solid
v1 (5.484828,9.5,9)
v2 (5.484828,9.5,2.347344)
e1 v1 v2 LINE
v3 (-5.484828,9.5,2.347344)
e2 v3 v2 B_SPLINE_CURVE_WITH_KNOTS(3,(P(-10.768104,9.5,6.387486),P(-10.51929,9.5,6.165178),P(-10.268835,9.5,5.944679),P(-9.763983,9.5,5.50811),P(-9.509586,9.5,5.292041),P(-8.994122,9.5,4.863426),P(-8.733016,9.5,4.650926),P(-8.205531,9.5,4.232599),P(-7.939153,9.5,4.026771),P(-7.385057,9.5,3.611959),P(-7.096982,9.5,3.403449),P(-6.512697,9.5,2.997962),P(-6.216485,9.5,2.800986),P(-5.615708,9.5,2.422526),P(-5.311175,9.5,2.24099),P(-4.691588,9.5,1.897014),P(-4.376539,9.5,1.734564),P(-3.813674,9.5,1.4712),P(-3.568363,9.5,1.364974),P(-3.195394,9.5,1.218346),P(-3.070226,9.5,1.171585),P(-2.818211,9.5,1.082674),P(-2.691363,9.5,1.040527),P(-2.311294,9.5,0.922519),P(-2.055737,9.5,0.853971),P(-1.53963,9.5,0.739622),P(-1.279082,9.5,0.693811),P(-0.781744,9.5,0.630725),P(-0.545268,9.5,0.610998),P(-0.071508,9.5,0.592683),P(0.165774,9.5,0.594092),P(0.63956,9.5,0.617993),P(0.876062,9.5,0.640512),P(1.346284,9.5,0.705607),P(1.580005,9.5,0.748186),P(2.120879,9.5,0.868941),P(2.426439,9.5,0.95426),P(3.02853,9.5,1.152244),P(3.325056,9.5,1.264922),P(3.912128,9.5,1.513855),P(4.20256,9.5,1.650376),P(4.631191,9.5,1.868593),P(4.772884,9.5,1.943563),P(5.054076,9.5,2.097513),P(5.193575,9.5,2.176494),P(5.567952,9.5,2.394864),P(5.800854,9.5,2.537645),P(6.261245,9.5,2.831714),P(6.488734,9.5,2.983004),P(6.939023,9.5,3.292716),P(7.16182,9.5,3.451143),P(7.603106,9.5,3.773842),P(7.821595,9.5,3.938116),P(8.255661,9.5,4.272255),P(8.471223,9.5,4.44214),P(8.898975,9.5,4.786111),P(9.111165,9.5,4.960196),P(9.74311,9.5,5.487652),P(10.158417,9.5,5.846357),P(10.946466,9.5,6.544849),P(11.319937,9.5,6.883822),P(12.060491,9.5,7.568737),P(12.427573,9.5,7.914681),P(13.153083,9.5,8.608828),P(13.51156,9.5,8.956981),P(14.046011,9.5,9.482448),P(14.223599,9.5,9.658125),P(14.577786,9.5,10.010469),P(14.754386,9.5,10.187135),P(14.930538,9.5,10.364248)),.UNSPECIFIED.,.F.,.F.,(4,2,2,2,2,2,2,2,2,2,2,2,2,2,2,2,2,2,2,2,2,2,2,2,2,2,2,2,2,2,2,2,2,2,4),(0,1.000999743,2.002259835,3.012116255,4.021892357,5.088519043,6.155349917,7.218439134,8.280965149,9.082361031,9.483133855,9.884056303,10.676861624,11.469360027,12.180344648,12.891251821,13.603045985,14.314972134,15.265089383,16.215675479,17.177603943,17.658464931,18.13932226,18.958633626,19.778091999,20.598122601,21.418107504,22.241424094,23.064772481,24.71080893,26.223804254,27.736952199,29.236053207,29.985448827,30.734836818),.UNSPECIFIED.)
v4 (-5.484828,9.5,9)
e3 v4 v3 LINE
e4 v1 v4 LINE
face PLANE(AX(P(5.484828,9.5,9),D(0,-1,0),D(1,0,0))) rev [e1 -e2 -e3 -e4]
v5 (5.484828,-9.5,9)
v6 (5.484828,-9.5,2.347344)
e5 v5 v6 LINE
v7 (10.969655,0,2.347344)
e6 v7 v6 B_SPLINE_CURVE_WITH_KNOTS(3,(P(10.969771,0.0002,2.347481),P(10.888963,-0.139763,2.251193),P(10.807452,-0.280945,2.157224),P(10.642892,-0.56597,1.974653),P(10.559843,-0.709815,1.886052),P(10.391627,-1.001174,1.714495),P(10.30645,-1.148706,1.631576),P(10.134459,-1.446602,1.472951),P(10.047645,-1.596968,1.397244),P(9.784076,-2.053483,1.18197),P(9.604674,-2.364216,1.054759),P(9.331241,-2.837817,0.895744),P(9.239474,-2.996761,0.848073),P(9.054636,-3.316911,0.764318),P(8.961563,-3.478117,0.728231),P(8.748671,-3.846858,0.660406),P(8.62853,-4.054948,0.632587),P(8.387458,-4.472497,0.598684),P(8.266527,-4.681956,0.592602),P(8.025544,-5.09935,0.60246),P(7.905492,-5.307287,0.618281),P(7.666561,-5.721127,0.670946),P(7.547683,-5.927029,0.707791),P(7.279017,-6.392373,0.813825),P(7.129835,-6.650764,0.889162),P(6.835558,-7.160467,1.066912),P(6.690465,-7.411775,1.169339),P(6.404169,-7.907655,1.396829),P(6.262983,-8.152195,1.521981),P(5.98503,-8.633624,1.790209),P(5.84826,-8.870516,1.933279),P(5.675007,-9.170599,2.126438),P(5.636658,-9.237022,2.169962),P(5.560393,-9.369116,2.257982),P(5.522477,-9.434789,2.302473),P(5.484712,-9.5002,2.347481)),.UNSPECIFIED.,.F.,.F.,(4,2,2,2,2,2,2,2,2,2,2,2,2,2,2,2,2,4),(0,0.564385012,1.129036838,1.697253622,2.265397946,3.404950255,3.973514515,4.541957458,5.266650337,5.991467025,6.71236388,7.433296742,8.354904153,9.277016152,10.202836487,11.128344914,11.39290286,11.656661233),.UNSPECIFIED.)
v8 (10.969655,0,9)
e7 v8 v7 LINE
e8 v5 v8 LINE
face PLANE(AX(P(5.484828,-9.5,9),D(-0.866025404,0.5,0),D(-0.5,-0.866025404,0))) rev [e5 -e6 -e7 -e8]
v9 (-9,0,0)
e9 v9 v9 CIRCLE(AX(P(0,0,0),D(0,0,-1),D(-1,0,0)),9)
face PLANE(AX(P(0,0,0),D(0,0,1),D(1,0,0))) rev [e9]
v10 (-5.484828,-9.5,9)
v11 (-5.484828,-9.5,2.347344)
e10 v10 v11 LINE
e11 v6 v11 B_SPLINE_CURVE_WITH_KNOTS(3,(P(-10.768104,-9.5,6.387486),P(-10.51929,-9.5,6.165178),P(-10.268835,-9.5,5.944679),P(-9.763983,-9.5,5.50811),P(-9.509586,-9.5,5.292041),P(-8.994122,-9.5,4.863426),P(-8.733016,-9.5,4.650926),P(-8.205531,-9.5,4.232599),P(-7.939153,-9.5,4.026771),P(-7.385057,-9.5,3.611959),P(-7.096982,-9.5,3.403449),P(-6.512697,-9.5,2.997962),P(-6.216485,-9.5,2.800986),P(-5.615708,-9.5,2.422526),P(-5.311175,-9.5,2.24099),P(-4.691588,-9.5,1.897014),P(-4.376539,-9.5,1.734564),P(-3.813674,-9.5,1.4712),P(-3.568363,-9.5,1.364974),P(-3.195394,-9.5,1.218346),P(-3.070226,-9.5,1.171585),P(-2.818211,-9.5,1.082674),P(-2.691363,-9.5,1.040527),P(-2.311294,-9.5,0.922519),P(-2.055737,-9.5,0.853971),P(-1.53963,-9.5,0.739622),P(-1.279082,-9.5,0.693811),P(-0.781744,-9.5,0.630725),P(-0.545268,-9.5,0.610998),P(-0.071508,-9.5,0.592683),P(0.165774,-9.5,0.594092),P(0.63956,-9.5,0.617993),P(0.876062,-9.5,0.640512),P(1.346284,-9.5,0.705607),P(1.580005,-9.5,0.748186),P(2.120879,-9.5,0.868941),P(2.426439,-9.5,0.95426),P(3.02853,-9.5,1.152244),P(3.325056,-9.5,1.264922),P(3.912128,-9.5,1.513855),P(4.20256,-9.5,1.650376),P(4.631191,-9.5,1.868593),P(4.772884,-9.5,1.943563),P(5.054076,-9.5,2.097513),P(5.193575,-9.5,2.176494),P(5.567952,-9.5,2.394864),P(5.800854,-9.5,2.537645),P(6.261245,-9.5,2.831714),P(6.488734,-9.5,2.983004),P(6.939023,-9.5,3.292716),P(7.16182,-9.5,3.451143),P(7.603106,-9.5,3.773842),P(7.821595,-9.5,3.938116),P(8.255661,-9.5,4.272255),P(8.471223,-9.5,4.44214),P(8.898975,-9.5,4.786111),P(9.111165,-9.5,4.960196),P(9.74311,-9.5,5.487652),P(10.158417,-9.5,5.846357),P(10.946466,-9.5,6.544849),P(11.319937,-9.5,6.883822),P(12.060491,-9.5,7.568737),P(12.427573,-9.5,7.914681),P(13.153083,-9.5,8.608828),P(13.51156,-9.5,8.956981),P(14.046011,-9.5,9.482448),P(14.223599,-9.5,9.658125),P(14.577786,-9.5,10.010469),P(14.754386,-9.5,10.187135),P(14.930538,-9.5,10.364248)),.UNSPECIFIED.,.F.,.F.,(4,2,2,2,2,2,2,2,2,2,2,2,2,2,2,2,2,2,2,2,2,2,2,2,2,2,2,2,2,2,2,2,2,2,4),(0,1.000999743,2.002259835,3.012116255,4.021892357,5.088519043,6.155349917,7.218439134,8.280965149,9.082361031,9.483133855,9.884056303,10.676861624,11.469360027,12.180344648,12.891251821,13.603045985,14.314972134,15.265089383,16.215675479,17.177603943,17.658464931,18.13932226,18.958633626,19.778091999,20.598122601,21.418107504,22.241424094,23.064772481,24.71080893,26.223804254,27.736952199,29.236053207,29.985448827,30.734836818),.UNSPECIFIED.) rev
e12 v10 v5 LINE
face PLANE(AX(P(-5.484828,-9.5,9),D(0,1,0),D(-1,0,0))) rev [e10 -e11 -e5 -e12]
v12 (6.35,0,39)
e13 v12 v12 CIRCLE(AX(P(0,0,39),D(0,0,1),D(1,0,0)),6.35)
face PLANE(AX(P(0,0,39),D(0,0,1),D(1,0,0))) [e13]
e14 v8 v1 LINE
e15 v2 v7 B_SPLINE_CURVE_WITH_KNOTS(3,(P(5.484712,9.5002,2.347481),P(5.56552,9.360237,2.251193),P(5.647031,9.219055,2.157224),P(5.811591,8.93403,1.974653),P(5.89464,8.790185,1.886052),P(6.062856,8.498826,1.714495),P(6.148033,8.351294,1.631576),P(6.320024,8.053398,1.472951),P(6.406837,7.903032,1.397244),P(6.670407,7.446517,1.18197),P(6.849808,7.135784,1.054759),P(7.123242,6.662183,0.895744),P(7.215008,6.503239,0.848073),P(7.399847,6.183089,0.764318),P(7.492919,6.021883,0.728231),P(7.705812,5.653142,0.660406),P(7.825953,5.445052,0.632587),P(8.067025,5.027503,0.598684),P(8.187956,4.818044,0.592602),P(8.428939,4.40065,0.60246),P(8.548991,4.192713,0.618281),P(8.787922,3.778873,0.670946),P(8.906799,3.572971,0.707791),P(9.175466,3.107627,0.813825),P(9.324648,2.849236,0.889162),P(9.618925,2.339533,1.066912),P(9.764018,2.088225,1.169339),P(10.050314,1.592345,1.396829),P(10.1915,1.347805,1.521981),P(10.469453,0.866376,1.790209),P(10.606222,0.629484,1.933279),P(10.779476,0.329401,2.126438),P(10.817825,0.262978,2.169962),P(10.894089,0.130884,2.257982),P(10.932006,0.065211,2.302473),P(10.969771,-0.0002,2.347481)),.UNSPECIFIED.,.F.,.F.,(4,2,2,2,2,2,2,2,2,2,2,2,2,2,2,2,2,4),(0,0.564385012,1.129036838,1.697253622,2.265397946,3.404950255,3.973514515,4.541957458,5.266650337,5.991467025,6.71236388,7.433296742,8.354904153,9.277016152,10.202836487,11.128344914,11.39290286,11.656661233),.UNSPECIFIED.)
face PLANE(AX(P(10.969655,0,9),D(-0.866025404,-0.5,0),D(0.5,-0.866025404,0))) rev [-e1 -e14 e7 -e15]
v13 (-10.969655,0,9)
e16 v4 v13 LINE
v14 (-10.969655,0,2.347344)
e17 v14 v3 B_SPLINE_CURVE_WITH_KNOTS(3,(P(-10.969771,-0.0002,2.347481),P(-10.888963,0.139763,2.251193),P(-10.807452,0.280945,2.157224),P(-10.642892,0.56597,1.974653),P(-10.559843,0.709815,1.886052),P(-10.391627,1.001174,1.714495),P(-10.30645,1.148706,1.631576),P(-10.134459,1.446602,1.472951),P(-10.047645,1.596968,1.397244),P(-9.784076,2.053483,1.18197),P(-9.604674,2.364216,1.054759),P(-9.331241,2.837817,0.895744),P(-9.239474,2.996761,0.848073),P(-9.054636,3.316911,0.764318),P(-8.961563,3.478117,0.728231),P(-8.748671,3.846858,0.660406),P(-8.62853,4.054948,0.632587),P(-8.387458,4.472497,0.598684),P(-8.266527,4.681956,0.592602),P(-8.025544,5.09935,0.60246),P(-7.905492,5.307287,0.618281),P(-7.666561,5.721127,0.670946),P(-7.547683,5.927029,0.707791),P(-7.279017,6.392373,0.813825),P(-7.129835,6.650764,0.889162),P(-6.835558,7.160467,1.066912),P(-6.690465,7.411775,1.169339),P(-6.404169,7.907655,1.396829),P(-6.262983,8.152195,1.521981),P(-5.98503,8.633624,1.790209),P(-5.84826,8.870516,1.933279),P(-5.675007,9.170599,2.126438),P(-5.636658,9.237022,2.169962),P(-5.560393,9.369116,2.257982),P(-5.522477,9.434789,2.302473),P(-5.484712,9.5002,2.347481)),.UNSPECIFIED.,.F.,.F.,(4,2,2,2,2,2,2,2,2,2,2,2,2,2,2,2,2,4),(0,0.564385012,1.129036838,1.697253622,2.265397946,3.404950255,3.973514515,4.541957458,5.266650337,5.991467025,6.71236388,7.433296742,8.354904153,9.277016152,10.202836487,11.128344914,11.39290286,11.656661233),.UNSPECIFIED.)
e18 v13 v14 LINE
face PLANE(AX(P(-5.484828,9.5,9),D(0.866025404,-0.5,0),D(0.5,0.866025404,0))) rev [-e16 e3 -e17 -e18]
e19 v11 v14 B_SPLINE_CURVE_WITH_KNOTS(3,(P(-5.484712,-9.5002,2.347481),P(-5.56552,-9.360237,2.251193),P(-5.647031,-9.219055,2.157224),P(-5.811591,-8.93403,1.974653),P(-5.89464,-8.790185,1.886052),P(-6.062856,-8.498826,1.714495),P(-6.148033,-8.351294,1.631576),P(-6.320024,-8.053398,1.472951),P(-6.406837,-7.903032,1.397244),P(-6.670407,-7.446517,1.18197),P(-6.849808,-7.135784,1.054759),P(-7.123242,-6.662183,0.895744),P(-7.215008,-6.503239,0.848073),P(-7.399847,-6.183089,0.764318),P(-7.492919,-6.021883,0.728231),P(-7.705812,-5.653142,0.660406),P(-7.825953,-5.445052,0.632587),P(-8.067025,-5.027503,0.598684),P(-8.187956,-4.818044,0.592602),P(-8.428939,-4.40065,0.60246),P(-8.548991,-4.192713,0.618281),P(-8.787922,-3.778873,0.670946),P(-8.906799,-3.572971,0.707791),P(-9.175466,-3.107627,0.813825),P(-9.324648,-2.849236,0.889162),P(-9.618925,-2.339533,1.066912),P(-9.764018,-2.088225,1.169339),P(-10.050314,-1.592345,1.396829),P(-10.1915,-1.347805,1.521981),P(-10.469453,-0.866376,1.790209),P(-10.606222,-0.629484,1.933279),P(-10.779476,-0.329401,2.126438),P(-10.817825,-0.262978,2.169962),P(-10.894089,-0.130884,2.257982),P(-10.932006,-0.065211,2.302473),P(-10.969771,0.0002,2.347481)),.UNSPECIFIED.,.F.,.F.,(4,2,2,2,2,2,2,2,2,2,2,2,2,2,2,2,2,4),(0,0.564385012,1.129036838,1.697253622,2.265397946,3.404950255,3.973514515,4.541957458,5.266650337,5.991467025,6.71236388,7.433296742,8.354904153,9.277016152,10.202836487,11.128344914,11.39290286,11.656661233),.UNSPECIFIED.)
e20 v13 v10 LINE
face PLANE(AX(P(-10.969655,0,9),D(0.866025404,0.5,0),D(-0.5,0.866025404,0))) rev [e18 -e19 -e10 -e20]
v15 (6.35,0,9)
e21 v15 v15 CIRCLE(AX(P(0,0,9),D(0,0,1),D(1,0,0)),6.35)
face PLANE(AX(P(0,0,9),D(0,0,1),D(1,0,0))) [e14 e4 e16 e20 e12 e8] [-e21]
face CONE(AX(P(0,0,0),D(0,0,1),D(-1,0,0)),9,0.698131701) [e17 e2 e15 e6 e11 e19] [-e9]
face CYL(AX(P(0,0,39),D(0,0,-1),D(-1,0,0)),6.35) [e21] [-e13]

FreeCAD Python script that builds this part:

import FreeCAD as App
import Part
import Sketcher
Q = App.Units.Quantity


def add_polygon(sketch, points):
    """Adds a closed chain of lines whose ends are joined by coincident constraints."""
    first, n = sketch.GeometryCount, len(points)
    for a, b in zip(points, points[1:] + points[:1]):
        sketch.addGeometry(Part.LineSegment(App.Vector(*a, 0), App.Vector(*b, 0)), False)
    for i in range(n):
        sketch.addConstraint(Sketcher.Constraint("Coincident", first + i, 2, first + (i + 1) % n, 1))

doc = App.newDocument("Part")
body = doc.addObject("PartDesign::Body", "Body")

sketch1 = body.newObject("Sketcher::SketchObject", "Sketch")
sketch1.AttachmentSupport = (doc.getObject("XY_Plane"), [""])
sketch1.MapMode = "FlatFace"
add_polygon(sketch1, [(11, 0), (5, 10), (-5, 10), (-11, 0), (-5, -10), (5, -10)])
sketch1.addConstraint(Sketcher.Constraint("Horizontal", 1))
sketch1.addConstraint(Sketcher.Constraint("Horizontal", 4))
sketch1.addConstraint(Sketcher.Constraint("Symmetric", 0, 2, 3, 2, -1, 1))
sketch1.addConstraint(Sketcher.Constraint("Symmetric", 2, 2, 5, 2, -1, 1))
sketch1.addConstraint(Sketcher.Constraint("PointOnObject", 2, 2, -1))
sketch1.addConstraint(Sketcher.Constraint("Parallel", 2, 5))
sketch1.addConstraint(Sketcher.Constraint("Vertical", 1, 2, 3, 2))
sketch1.addConstraint(Sketcher.Constraint("Angle", 0, Q("120 deg")))
sketch1.addConstraint(Sketcher.Constraint("DistanceY", 3, 2, 1, 2, Q("19 mm")))
sketch1.addConstraint(Sketcher.Constraint("DistanceX", 1, 2, 1, 1, Q("10.969655 mm")))
pad1 = body.newObject("PartDesign::Pad", "Pad")
pad1.Profile = sketch1
pad1.Length = 9

sketch2 = body.newObject("Sketcher::SketchObject", "Sketch001")
sketch2.AttachmentSupport = (doc.getObject("XY_Plane"), [""])
sketch2.MapMode = "FlatFace"
sketch2.AttachmentOffset = App.Placement(App.Vector(0, 0, 9), App.Rotation())
sketch2.addGeometry(Part.Circle(App.Vector(0, 0, 0), App.Vector(0, 0, 1), 6), False)
sketch2.addConstraint(Sketcher.Constraint("Coincident", 0, 3, -1, 1))
sketch2.addConstraint(Sketcher.Constraint("Diameter", 0, Q("12.7 mm")))
pad2 = body.newObject("PartDesign::Pad", "Pad001")
pad2.Profile = sketch2
pad2.Length = 30

sketch3 = body.newObject("Sketcher::SketchObject", "Sketch002")
sketch3.AttachmentSupport = (doc.getObject("XY_Plane"), [""])
sketch3.MapMode = "FlatFace"
sketch3.addGeometry(Part.Circle(App.Vector(0, 0, 0), App.Vector(0, 0, 1), 19), False)
sketch3.addGeometry(Part.Circle(App.Vector(0, 0, 0), App.Vector(0, 0, 1), 9), False)
sketch3.addConstraint(Sketcher.Constraint("Coincident", 0, 3, -1, 1))
sketch3.addConstraint(Sketcher.Constraint("Coincident", 1, 3, -1, 1))
sketch3.addConstraint(Sketcher.Constraint("Diameter", 1, Q("18 mm")))
sketch3.addConstraint(Sketcher.Constraint("Diameter", 0, Q("37.629272 mm")))
pocket1 = body.newObject("PartDesign::Pocket", "Pocket")
pocket1.Profile = sketch3
pocket1.Length = 10
pocket1.Reversed = True
pocket1.TaperAngle = 40

doc.recompute()
